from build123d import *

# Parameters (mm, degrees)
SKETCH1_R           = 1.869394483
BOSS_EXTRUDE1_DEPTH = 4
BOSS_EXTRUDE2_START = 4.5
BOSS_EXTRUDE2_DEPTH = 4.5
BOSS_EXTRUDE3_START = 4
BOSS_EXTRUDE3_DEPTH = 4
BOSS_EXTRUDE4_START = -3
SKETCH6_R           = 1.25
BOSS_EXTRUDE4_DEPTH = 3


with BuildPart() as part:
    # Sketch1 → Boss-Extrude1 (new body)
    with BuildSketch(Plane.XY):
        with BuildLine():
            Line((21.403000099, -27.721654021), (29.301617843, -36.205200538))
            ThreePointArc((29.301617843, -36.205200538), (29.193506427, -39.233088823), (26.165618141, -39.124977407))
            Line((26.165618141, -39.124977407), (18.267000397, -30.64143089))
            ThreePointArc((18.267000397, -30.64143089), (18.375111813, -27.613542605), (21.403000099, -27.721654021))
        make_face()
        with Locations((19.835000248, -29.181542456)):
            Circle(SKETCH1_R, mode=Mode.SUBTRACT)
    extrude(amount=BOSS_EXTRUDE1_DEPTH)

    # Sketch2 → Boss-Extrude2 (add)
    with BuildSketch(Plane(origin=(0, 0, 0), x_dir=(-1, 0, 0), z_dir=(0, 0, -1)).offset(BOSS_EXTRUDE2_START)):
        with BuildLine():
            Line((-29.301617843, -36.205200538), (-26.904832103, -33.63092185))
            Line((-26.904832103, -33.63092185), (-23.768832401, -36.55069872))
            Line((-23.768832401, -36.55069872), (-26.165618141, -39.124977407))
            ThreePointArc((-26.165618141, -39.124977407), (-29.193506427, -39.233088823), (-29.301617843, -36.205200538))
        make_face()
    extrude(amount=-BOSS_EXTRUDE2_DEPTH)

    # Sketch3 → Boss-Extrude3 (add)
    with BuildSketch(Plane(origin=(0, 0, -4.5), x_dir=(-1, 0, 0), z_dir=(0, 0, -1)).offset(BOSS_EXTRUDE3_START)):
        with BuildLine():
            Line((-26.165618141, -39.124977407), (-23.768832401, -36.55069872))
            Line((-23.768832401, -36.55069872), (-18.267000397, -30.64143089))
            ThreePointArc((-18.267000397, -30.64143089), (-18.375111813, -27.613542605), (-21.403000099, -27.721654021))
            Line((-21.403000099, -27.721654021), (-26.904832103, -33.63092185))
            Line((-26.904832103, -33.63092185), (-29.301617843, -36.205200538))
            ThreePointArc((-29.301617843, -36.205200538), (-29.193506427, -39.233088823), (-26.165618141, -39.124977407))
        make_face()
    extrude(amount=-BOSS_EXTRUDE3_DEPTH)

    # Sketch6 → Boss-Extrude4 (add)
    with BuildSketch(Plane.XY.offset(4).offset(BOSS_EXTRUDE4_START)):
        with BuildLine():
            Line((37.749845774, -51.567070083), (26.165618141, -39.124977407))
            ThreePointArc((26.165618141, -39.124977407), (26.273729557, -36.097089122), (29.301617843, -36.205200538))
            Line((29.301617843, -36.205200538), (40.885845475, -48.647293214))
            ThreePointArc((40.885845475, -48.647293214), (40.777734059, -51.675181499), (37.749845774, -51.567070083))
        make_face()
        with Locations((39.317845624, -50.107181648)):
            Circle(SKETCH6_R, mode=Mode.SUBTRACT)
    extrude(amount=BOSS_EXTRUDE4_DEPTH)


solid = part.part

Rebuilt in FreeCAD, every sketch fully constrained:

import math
import FreeCAD as App
import Part
import Sketcher

V = App.Vector
Q = App.Units.Quantity

doc = App.newDocument("Part")
body = doc.addObject("PartDesign::Body", "Body")

# Sketch on XY plane
sketch1 = body.newObject("Sketcher::SketchObject", "Sketch")
sketch1.AttachmentSupport = (doc.getObject("XY_Plane"), [""])
sketch1.MapMode = "FlatFace"
sketch1.addGeometry([
    Part.LineSegment(V(29.3, -36.2, 0), V(21.4, -27.7, 0)),  # 0
    Part.ArcOfCircle(Part.Circle(V(19.8, -29.2, 0), V(0, 0, 1), 2.1), math.radians(43), math.radians(223)),  # 1
    Part.LineSegment(V(18.3, -30.6, 0), V(26.2, -39.1, 0)),  # 2
    Part.ArcOfCircle(Part.Circle(V(27.7, -37.7, 0), V(0, 0, 1), 2.1), math.radians(-137), math.radians(43)),  # 3
    Part.Circle(V(19.8, -29.2, 0), V(0, 0, 1), 1.9),  # 4
], False)
sketch1.addConstraint([
    Sketcher.Constraint("Tangent", 0, 2, 1, 1),
    Sketcher.Constraint("Tangent", 1, 2, 2, 1),
    Sketcher.Constraint("Tangent", 2, 2, 3, 1),
    Sketcher.Constraint("Tangent", 3, 2, 0, 1),
    Sketcher.Constraint("Coincident", 4, 3, 1, 3),
    Sketcher.Constraint("Equal", 1, 3),
    Sketcher.Constraint("Diameter", 4, Q("3.738789 mm")),
    Sketcher.Constraint("DistanceX", -1, 1, 1, 3, Q("19.835 mm")),
    Sketcher.Constraint("DistanceX", -1, 1, 0, 2, Q("21.403 mm")),
    Sketcher.Constraint("Radius", 1, Q("2.142405 mm")),
    Sketcher.Constraint("DistanceY", 3, 2, -1, 1, Q("36.205201 mm")),
    Sketcher.Constraint("Distance", 0, Q("11.591321 mm")),
])
pad1 = body.newObject("PartDesign::Pad", "Pad")
pad1.Profile = sketch1
pad1.Length = 4

# Sketch on XY plane
sketch2 = body.newObject("Sketcher::SketchObject", "Sketch001")
sketch2.AttachmentSupport = (doc.getObject("XY_Plane"), [""])
sketch2.MapMode = "FlatFace"
sketch2.AttachmentOffset = App.Placement(V(0, 0, -4.5), App.Rotation())
sketch2.addGeometry([
    Part.LineSegment(V(26.9, -33.6, 0), V(29.3, -36.2, 0)),
    Part.ArcOfCircle(Part.Circle(V(27.7, -37.7, 0), V(0, 0, 1), 2.1), math.radians(-137), math.radians(43)),
    Part.LineSegment(V(26.2, -39.1, 0), V(23.8, -36.6, 0)),
    Part.LineSegment(V(23.8, -36.6, 0), V(26.9, -33.6, 0)),
], False)
sketch2.addConstraint([
    Sketcher.Constraint("Tangent", 0, 2, 1, 2),
    Sketcher.Constraint("Tangent", 1, 1, 2, 1),
    Sketcher.Constraint("Coincident", 2, 2, 3, 1),
    Sketcher.Constraint("Coincident", 3, 2, 0, 1),
    Sketcher.Constraint("Parallel", 0, 2),
    Sketcher.Constraint("Perpendicular", 2, 3),
    Sketcher.Constraint("Radius", 1, Q("2.142405 mm")),
    Sketcher.Constraint("DistanceX", 1, 3, 0, 2, Q("1.568 mm")),
    Sketcher.Constraint("DistanceY", 0, 2, -1, 1, Q("36.205201 mm")),
    Sketcher.Constraint("DistanceY", 2, 2, -1, 1, Q("36.550699 mm")),
    Sketcher.Constraint("DistanceX", -1, 1, 1, 1, Q("26.165618 mm")),
])
pad2 = body.newObject("PartDesign::Pad", "Pad001")
pad2.Profile = sketch2
pad2.Length = 4.5

# Sketch on XY plane
sketch3 = body.newObject("Sketcher::SketchObject", "Sketch002")
sketch3.AttachmentSupport = (doc.getObject("XY_Plane"), [""])
sketch3.MapMode = "FlatFace"
sketch3.AttachmentOffset = App.Placement(V(0, 0, -8.5), App.Rotation())
sketch3.addGeometry([
    Part.LineSegment(V(26.2, -39.1, 0), V(23.8, -36.6, 0)),  # 0
    Part.LineSegment(V(23.8, -36.6, 0), V(18.3, -30.6, 0)),  # 1
    Part.ArcOfCircle(Part.Circle(V(19.8, -29.2, 0), V(0, 0, 1), 2.1), math.radians(43), math.radians(223)),  # 2
    Part.LineSegment(V(21.4, -27.7, 0), V(26.9, -33.6, 0)),  # 3
    Part.LineSegment(V(26.9, -33.6, 0), V(29.3, -36.2, 0)),  # 4
    Part.ArcOfCircle(Part.Circle(V(27.7, -37.7, 0), V(0, 0, 1), 2.1), math.radians(-137), math.radians(43)),  # 5
], False)
sketch3.addConstraint([
    Sketcher.Constraint("Coincident", 0, 2, 1, 1),
    Sketcher.Constraint("Tangent", 1, 2, 2, 2),
    Sketcher.Constraint("Tangent", 2, 1, 3, 1),
    Sketcher.Constraint("Coincident", 3, 2, 4, 1),
    Sketcher.Constraint("Tangent", 4, 2, 5, 2),
    Sketcher.Constraint("Tangent", 5, 1, 0, 1),
    Sketcher.Constraint("Equal", 2, 5),
    Sketcher.Constraint("Parallel", 0, 1),
    Sketcher.Constraint("Parallel", 1, 3),
    Sketcher.Constraint("Equal", 1, 3),
    Sketcher.Constraint("DistanceX", -1, 1, 2, 3, Q("19.835 mm")),
    Sketcher.Constraint("DistanceX", -1, 1, 1, 2, Q("18.267 mm")),
    Sketcher.Constraint("Radius", 2, Q("2.142405 mm")),
    Sketcher.Constraint("DistanceY", 0, 2, -1, 1, Q("36.550699 mm")),
    Sketcher.Constraint("DistanceY", 4, 2, -1, 1, Q("36.205201 mm")),
    Sketcher.Constraint("DistanceY", 1, 2, -1, 1, Q("30.641431 mm")),
])
pad3 = body.newObject("PartDesign::Pad", "Pad002")
pad3.Profile = sketch3
pad3.Length = 4

# Sketch on XY plane
sketch4 = body.newObject("Sketcher::SketchObject", "Sketch003")
sketch4.AttachmentSupport = (doc.getObject("XY_Plane"), [""])
sketch4.MapMode = "FlatFace"
sketch4.AttachmentOffset = App.Placement(V(0, 0, 1), App.Rotation())
sketch4.addGeometry([
    Part.LineSegment(V(26.2, -39.1, 0), V(37.7, -51.6, 0)),  # 0
    Part.ArcOfCircle(Part.Circle(V(39.3, -50.1, 0), V(0, 0, 1), 2.1), math.radians(-137), math.radians(43)),  # 1
    Part.LineSegment(V(40.9, -48.6, 0), V(29.3, -36.2, 0)),  # 2
    Part.ArcOfCircle(Part.Circle(V(27.7, -37.7, 0), V(0, 0, 1), 2.1), math.radians(43), math.radians(223)),  # 3
    Part.Circle(V(39.3, -50.1, 0), V(0, 0, 1), 1.2),  # 4
], False)
sketch4.addConstraint([
    Sketcher.Constraint("Tangent", 0, 2, 1, 1),
    Sketcher.Constraint("Tangent", 1, 2, 2, 1),
    Sketcher.Constraint("Tangent", 2, 2, 3, 1),
    Sketcher.Constraint("Tangent", 3, 2, 0, 1),
    Sketcher.Constraint("Coincident", 4, 3, 1, 3),
    Sketcher.Constraint("Equal", 1, 3),
    Sketcher.Constraint("Diameter", 4, Q("2.5 mm")),
    Sketcher.Constraint("Distance", 0, Q("17 mm")),
    Sketcher.Constraint("Radius", 1, Q("2.142405 mm")),
    Sketcher.Constraint("DistanceX", 0, 2, 4, 3, Q("1.568 mm")),
    Sketcher.Constraint("DistanceY", 2, 2, -1, 1, Q("36.205201 mm")),
    Sketcher.Constraint("DistanceX", -1, 1, 3, 2, Q("26.165618 mm")),
])
pad4 = body.newObject("PartDesign::Pad", "Pad003")
pad4.Profile = sketch4
pad4.Length = 3

doc.recompute()
